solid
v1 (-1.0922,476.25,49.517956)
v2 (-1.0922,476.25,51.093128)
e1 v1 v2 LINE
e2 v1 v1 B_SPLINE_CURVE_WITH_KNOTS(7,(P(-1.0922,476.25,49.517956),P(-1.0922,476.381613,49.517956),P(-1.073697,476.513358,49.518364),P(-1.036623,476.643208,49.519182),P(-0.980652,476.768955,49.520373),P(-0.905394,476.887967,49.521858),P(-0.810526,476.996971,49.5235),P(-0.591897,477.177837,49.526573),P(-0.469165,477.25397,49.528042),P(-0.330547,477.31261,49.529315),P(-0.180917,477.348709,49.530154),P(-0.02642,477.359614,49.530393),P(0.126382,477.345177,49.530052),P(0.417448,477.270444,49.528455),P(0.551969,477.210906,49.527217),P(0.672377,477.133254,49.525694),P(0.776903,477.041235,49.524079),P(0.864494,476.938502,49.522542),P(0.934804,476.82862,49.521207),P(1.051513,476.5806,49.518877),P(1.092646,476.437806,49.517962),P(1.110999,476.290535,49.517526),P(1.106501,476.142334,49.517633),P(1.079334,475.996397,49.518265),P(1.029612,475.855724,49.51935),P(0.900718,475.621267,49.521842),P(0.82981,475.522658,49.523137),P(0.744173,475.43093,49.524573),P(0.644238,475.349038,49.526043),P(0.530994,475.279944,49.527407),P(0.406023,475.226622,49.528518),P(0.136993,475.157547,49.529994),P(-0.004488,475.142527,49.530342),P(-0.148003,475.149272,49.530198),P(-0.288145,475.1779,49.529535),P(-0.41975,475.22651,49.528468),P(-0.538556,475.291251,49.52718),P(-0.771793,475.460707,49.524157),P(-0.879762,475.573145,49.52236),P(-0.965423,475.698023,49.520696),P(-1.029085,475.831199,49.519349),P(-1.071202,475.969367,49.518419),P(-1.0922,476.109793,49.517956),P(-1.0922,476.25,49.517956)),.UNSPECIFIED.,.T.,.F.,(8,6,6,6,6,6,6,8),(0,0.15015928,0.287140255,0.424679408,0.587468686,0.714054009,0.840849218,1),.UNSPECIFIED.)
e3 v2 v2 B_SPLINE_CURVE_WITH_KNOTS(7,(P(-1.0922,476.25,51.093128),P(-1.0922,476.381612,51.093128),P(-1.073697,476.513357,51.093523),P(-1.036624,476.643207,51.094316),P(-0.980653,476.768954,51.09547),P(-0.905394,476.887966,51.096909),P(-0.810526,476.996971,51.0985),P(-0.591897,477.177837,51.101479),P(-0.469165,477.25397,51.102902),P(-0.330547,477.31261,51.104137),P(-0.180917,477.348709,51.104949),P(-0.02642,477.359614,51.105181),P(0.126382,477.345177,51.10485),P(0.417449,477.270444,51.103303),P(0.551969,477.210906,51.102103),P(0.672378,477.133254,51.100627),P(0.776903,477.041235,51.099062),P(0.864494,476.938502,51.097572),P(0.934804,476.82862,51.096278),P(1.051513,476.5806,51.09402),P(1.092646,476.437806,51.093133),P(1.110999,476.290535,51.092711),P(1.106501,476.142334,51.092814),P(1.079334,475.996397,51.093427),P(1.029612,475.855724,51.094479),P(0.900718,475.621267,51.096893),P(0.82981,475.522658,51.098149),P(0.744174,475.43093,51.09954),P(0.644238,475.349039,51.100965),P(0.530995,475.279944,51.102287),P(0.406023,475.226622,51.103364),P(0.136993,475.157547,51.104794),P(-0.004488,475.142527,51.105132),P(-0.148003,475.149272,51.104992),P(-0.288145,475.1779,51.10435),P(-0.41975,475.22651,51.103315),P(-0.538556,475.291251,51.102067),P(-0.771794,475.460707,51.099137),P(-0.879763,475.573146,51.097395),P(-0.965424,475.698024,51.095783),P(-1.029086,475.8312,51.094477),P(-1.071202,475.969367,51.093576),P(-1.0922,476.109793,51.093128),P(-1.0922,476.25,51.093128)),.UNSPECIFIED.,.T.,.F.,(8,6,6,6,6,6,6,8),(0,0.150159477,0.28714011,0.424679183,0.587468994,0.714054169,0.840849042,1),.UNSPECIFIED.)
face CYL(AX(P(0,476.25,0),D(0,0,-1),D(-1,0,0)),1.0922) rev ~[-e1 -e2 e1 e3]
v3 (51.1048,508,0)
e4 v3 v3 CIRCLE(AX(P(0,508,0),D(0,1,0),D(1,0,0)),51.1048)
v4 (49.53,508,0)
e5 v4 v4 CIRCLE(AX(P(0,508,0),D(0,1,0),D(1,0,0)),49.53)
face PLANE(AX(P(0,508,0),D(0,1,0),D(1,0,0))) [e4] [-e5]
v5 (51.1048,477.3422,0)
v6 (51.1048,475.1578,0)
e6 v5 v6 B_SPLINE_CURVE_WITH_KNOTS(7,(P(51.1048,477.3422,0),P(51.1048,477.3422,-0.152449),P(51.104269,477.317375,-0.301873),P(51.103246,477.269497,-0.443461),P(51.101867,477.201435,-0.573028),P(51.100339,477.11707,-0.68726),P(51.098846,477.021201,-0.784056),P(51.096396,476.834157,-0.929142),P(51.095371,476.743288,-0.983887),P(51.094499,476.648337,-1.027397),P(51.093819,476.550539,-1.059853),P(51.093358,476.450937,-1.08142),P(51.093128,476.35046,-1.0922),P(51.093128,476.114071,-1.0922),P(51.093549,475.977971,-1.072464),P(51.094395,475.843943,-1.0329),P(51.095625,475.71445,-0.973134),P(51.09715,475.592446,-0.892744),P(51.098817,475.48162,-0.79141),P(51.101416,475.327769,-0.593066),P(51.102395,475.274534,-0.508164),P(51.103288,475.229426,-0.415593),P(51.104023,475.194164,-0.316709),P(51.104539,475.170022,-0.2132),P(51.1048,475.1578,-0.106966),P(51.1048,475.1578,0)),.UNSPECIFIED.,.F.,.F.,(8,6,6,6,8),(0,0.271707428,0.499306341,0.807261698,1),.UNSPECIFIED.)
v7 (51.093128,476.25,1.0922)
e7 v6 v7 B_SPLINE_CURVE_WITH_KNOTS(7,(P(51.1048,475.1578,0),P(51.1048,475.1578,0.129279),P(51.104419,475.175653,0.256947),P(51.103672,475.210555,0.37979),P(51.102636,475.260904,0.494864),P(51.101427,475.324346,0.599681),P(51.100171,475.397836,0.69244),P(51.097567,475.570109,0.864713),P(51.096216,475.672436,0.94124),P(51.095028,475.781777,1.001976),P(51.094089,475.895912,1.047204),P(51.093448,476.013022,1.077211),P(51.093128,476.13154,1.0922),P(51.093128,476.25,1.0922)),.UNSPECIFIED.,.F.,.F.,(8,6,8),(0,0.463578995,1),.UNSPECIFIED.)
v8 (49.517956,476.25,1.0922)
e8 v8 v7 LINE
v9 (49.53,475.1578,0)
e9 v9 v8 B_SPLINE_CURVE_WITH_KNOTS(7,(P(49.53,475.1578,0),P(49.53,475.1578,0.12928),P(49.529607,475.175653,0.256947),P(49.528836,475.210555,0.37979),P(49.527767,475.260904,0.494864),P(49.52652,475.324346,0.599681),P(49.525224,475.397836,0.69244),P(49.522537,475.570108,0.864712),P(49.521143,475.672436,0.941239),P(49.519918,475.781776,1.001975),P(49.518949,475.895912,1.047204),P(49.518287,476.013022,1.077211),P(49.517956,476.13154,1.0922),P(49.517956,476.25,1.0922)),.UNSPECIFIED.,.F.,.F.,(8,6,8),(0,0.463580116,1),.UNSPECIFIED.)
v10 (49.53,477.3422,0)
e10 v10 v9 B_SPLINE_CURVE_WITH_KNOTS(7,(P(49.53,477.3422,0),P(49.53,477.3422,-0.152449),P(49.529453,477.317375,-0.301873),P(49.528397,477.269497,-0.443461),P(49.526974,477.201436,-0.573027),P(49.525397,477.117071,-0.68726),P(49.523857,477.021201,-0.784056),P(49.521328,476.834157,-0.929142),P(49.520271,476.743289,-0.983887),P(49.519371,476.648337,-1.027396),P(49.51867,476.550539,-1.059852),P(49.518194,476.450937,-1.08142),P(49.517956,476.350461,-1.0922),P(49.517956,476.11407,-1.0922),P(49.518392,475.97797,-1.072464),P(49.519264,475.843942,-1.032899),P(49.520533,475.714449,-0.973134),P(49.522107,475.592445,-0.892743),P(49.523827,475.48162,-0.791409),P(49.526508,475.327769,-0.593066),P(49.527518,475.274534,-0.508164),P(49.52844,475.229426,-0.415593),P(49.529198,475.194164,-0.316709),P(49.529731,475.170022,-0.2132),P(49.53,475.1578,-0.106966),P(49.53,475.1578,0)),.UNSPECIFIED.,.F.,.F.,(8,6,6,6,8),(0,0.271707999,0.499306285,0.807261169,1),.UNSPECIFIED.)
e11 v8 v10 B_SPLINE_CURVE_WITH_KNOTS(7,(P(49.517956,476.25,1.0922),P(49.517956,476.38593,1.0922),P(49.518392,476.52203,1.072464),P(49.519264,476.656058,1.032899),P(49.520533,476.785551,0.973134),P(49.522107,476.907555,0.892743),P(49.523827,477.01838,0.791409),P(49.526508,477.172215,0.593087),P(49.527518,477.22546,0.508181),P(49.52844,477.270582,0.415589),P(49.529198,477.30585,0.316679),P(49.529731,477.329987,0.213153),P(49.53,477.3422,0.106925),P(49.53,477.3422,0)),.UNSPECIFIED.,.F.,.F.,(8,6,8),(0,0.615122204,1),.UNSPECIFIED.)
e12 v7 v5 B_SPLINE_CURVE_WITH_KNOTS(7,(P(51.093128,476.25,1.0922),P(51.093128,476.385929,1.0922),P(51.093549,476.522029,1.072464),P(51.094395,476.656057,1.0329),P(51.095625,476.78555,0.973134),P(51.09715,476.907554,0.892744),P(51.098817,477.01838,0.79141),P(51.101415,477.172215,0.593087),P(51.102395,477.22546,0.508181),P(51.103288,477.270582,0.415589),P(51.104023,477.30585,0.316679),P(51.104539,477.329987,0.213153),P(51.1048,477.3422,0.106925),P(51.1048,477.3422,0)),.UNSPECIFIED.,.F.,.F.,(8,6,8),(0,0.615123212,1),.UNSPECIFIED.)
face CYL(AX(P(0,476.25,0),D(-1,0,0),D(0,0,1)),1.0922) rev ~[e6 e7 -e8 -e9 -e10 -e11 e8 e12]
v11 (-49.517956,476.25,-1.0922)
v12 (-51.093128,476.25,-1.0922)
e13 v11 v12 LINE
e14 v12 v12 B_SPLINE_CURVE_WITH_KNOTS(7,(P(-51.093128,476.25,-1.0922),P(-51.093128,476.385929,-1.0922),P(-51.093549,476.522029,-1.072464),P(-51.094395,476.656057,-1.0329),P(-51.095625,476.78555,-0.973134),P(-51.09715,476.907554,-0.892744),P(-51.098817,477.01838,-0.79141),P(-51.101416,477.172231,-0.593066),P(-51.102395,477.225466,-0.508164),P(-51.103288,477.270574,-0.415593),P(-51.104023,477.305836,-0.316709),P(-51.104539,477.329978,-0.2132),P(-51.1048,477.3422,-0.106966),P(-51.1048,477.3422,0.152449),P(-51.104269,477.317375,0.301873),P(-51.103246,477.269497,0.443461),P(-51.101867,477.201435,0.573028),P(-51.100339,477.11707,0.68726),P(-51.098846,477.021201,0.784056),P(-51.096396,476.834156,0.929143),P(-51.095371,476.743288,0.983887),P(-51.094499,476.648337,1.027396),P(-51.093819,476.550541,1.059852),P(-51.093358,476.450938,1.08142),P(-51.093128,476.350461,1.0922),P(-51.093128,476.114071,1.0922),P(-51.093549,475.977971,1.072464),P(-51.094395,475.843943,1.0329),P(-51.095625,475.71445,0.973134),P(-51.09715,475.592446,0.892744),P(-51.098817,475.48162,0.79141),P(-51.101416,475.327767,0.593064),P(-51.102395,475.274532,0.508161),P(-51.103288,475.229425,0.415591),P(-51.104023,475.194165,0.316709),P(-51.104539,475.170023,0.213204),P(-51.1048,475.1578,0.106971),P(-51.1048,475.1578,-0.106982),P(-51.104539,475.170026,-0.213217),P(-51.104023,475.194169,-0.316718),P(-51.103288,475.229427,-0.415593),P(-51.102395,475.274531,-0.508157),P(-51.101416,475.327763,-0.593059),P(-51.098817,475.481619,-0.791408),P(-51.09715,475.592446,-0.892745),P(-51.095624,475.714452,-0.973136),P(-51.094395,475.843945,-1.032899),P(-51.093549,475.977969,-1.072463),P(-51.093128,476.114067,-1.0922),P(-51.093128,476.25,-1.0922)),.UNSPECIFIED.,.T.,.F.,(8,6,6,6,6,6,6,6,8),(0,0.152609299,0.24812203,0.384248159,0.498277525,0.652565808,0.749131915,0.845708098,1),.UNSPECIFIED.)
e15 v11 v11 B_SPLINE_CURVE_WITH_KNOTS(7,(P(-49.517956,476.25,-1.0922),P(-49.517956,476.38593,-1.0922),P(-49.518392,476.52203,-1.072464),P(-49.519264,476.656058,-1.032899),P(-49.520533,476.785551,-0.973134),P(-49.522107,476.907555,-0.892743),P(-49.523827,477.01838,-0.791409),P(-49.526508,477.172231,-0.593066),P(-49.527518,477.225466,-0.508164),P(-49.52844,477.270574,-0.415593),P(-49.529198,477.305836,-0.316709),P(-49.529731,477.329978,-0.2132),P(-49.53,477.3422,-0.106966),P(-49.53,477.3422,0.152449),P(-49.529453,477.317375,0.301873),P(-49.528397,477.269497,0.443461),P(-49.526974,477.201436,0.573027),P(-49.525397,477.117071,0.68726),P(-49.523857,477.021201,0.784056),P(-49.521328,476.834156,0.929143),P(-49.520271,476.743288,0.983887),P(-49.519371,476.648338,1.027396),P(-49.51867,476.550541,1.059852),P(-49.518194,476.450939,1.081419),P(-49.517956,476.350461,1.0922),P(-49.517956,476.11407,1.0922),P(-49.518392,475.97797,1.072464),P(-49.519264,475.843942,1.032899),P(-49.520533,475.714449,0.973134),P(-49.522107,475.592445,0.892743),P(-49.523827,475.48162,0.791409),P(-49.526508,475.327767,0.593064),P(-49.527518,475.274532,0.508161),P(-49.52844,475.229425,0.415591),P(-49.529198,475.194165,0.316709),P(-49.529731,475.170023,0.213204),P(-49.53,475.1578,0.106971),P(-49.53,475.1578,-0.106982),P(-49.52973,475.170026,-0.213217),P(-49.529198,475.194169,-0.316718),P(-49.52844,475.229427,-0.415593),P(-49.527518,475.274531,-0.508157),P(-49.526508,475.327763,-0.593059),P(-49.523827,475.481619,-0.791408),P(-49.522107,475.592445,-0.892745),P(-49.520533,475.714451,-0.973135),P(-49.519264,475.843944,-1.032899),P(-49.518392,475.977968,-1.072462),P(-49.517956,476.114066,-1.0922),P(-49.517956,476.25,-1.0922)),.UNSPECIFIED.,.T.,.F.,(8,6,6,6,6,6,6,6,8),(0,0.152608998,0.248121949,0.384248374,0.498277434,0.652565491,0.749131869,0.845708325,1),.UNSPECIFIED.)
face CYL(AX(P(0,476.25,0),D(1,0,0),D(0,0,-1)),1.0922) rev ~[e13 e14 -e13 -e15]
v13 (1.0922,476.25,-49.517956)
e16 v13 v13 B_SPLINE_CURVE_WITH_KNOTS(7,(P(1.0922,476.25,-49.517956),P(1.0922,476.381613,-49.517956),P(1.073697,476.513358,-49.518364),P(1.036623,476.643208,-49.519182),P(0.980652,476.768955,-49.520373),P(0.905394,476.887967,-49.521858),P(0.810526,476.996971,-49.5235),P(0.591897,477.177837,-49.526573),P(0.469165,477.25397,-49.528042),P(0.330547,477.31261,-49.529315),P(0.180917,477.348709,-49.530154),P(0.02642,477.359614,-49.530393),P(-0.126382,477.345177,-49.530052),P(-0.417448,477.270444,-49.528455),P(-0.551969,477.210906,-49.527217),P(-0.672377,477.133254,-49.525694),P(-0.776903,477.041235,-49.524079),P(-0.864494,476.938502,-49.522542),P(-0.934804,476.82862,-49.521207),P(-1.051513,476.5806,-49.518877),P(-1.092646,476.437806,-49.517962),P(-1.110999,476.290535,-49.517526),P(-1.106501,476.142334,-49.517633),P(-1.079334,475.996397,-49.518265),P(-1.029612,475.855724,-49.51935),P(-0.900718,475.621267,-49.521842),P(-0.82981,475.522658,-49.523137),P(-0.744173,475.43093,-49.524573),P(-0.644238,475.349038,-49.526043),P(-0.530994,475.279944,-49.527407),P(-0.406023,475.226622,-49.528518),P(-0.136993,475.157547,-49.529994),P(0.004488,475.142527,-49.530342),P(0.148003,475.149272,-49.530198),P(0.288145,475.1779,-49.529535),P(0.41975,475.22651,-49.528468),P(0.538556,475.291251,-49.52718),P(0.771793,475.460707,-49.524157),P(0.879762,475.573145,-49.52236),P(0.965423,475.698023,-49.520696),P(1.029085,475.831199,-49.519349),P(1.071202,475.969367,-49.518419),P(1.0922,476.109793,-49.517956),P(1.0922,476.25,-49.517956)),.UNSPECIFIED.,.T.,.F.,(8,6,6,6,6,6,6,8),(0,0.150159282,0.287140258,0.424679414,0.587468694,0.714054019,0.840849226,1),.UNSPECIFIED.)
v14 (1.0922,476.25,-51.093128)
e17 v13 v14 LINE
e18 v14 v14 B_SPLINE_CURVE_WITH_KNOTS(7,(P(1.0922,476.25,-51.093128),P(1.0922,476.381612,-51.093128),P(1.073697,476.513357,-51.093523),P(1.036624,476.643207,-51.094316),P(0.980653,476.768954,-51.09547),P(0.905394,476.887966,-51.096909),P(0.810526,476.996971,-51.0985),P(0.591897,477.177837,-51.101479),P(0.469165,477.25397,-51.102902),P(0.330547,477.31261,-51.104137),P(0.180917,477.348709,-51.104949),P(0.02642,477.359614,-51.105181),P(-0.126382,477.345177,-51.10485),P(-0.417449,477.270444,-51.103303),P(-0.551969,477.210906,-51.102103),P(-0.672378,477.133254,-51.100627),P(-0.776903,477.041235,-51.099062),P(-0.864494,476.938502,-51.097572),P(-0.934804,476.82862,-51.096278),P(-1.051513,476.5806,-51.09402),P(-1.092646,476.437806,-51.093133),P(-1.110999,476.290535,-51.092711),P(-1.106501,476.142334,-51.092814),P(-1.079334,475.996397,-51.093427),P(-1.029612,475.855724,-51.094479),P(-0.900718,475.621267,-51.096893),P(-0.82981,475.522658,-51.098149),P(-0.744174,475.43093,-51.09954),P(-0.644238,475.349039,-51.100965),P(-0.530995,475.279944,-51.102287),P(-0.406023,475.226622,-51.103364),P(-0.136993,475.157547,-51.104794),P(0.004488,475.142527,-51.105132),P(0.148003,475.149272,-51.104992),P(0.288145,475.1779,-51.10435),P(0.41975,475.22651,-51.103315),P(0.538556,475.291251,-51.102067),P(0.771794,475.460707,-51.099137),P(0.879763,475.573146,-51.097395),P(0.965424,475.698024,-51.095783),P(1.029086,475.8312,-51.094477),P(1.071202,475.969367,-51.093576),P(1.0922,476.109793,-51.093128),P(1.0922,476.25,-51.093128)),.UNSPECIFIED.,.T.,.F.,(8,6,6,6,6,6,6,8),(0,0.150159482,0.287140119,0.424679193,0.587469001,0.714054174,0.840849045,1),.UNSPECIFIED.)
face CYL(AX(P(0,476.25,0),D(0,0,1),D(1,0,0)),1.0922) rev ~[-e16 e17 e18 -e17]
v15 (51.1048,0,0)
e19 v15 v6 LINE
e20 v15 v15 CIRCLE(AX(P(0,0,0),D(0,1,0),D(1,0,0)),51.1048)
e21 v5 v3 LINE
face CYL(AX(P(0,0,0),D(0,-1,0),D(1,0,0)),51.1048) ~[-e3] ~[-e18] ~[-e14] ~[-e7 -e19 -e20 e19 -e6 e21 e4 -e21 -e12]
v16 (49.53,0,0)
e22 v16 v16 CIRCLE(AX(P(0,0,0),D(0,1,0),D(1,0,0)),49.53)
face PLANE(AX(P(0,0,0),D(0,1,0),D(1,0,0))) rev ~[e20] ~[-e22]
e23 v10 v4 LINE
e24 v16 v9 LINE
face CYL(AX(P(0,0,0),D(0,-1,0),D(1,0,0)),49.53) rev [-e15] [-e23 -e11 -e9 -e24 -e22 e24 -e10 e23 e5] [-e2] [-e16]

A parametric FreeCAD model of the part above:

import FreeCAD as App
import Part
import Sketcher
from FreeCAD import Vector
Q = App.Units.Quantity

doc = App.newDocument("Part")
params = doc.addObject("Spreadsheet::Sheet", "Params")
for row, (alias, value) in enumerate([
    ("sketch1_diameter", "3.9 in"),
    ("sketch1_diameter2", "4.024 in"),
    ("pad1_length", "20 in"),
    ("sketch2_diameter", "0.086 in"),
], start=1):
    params.set(f"A{row}", alias)
    params.set(f"B{row}", "=" + value)
    params.setAlias(f"B{row}", alias)

body = doc.addObject("PartDesign::Body", "Body")

# Sketch on XZ plane
sketch1 = body.newObject("Sketcher::SketchObject", "Sketch")
sketch1.AttachmentSupport = (doc.getObject("XZ_Plane"), [""])
sketch1.MapMode = "FlatFace"
sketch1.addGeometry([
    Part.Circle(Vector(0, 0, 0), Vector(0, 0, 1), 51),
    Part.Circle(Vector(0, 0, 0), Vector(0, 0, 1), 50),
], False)
sketch1.addConstraint([
    Sketcher.Constraint("Coincident", 0, 3, -1, 1),
    Sketcher.Constraint("Coincident", 1, 3, -1, 1),
    Sketcher.Constraint("Diameter", 1, Q("3.9 in")),
    Sketcher.Constraint("Diameter", 0, Q("4.024 in")),
])
sketch1.setExpression("Constraints[2]", "Params.sketch1_diameter")
sketch1.setExpression("Constraints[3]", "Params.sketch1_diameter2")
pad1 = body.newObject("PartDesign::Pad", "Pad")
pad1.Profile = sketch1
pad1.setExpression("Length", "Params.pad1_length")
pad1.Reversed = True

# Sketch on XY plane
sketch2 = body.newObject("Sketcher::SketchObject", "Sketch001")
sketch2.AttachmentSupport = (doc.getObject("XY_Plane"), [""])
sketch2.MapMode = "FlatFace"
sketch2.addGeometry(Part.Circle(Vector(0, 476.2, 0), Vector(0, 0, 1), 1.1), False)
sketch2.addConstraint([
    Sketcher.Constraint("PointOnObject", 0, 3, -2),
    Sketcher.Constraint("Diameter", 0, Q("0.086 in")),
    Sketcher.Constraint("DistanceY", -1, 1, 0, 3, Q("18.75 in")),
])
sketch2.setExpression("Constraints[1]", "Params.sketch2_diameter")
pocket1 = body.newObject("PartDesign::Pocket", "Pocket")
pocket1.Profile = sketch2
pocket1.Type = "ThroughAll"
doc.recompute()

polarpattern = body.newObject("PartDesign::PolarPattern", "PolarPattern")
polarpattern.Originals = [pocket1]
polarpattern.Axis = (doc.getObject("Y_Axis"), [""])
polarpattern.Angle = 360
polarpattern.Occurrences = 4
body.Tip = polarpattern

doc.recompute()
